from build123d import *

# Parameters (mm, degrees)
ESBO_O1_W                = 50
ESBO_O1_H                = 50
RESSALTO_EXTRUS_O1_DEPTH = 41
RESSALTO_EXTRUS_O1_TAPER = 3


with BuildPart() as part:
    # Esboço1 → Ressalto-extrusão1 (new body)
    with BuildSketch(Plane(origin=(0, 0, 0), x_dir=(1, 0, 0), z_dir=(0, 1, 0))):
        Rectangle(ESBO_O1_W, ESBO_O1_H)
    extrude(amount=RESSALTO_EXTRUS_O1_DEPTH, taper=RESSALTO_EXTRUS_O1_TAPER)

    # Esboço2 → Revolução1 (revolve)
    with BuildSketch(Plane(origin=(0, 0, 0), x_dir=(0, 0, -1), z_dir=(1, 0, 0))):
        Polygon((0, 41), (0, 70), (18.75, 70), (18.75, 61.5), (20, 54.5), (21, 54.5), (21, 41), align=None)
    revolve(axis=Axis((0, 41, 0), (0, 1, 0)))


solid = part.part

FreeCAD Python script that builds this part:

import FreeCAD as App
import Part
import Sketcher
from FreeCAD import Vector
Q = App.Units.Quantity

doc = App.newDocument("Part")
body = doc.addObject("PartDesign::Body", "Body")

# Sketch on XZ plane
sketch1 = body.newObject("Sketcher::SketchObject", "Sketch")
sketch1.AttachmentSupport = (doc.getObject("XZ_Plane"), [""])
sketch1.MapMode = "FlatFace"
sketch1.addGeometry(Part.LineSegment(Vector(-25, -25, 0), Vector(-25, 25, 0)), False)
sketch1.addGeometry(Part.LineSegment(Vector(-25, 25, 0), Vector(25, 25, 0)), False)
sketch1.addGeometry(Part.LineSegment(Vector(25, 25, 0), Vector(25, -25, 0)), False)
sketch1.addGeometry(Part.LineSegment(Vector(25, -25, 0), Vector(-25, -25, 0)), False)
sketch1.addConstraint(Sketcher.Constraint("Coincident", 0, 2, 1, 1))
sketch1.addConstraint(Sketcher.Constraint("Coincident", 1, 2, 2, 1))
sketch1.addConstraint(Sketcher.Constraint("Coincident", 2, 2, 3, 1))
sketch1.addConstraint(Sketcher.Constraint("Coincident", 3, 2, 0, 1))
sketch1.addConstraint(Sketcher.Constraint("Vertical", 0))
sketch1.addConstraint(Sketcher.Constraint("Horizontal", 1))
sketch1.addConstraint(Sketcher.Constraint("Vertical", 2))
sketch1.addConstraint(Sketcher.Constraint("Horizontal", 3))
sketch1.addConstraint(Sketcher.Constraint("Symmetric", 0, 2, 2, 2, -1, 1))
sketch1.addConstraint(Sketcher.Constraint("Equal", 3, 0))
sketch1.addConstraint(Sketcher.Constraint("DistanceX", 1, 1, 1, 2, Q("50 mm")))
pad1 = body.newObject("PartDesign::Pad", "Pad")
pad1.Profile = sketch1
pad1.Length = 41
pad1.Reversed = True
pad1.TaperAngle = -3

# Sketch on YZ plane
sketch2 = body.newObject("Sketcher::SketchObject", "Sketch001")
sketch2.AttachmentSupport = (doc.getObject("YZ_Plane"), [""])
sketch2.MapMode = "FlatFace"
sketch2.addGeometry(Part.LineSegment(Vector(70, 0, 0), Vector(41, 0, 0)), False)
sketch2.addGeometry(Part.LineSegment(Vector(41, 0, 0), Vector(41, -21, 0)), False)
sketch2.addGeometry(Part.LineSegment(Vector(41, -21, 0), Vector(54.5, -21, 0)), False)
sketch2.addGeometry(Part.LineSegment(Vector(54.5, -21, 0), Vector(54.5, -20, 0)), False)
sketch2.addGeometry(Part.LineSegment(Vector(54.5, -20, 0), Vector(61.5, -18.8, 0)), False)
sketch2.addGeometry(Part.LineSegment(Vector(61.5, -18.8, 0), Vector(70, -18.8, 0)), False)
sketch2.addGeometry(Part.LineSegment(Vector(70, -18.8, 0), Vector(70, 0, 0)), False)
sketch2.addConstraint(Sketcher.Constraint("Coincident", 0, 2, 1, 1))
sketch2.addConstraint(Sketcher.Constraint("Coincident", 1, 2, 2, 1))
sketch2.addConstraint(Sketcher.Constraint("Coincident", 2, 2, 3, 1))
sketch2.addConstraint(Sketcher.Constraint("Coincident", 3, 2, 4, 1))
sketch2.addConstraint(Sketcher.Constraint("Coincident", 4, 2, 5, 1))
sketch2.addConstraint(Sketcher.Constraint("Coincident", 5, 2, 6, 1))
sketch2.addConstraint(Sketcher.Constraint("Coincident", 6, 2, 0, 1))
sketch2.addConstraint(Sketcher.Constraint("Horizontal", 0))
sketch2.addConstraint(Sketcher.Constraint("Vertical", 1))
sketch2.addConstraint(Sketcher.Constraint("Horizontal", 2))
sketch2.addConstraint(Sketcher.Constraint("Vertical", 3))
sketch2.addConstraint(Sketcher.Constraint("Horizontal", 5))
sketch2.addConstraint(Sketcher.Constraint("Vertical", 6))
sketch2.addConstraint(Sketcher.Constraint("PointOnObject", 0, 2, -1))
sketch2.addConstraint(Sketcher.Constraint("DistanceX", 0, 2, 0, 1, Q("29 mm")))
sketch2.addConstraint(Sketcher.Constraint("DistanceY", 1, 2, 1, 1, Q("21 mm")))
sketch2.addConstraint(Sketcher.Constraint("DistanceY", 3, 1, 3, 2, Q("1 mm")))
sketch2.addConstraint(Sketcher.Constraint("DistanceX", 2, 1, 2, 2, Q("13.5 mm")))
sketch2.addConstraint(Sketcher.Constraint("DistanceX", 5, 1, 5, 2, Q("8.5 mm")))
sketch2.addConstraint(Sketcher.Constraint("DistanceX", -1, 1, 0, 2, Q("41 mm")))
sketch2.addConstraint(Sketcher.Constraint("DistanceY", 6, 1, 6, 2, Q("18.75 mm")))
revolution = body.newObject("PartDesign::Revolution", "Revolution")
revolution.Profile = sketch2
revolution.ReferenceAxis = (sketch2, ["H_Axis"])
revolution.Angle = 360

doc.recompute()
